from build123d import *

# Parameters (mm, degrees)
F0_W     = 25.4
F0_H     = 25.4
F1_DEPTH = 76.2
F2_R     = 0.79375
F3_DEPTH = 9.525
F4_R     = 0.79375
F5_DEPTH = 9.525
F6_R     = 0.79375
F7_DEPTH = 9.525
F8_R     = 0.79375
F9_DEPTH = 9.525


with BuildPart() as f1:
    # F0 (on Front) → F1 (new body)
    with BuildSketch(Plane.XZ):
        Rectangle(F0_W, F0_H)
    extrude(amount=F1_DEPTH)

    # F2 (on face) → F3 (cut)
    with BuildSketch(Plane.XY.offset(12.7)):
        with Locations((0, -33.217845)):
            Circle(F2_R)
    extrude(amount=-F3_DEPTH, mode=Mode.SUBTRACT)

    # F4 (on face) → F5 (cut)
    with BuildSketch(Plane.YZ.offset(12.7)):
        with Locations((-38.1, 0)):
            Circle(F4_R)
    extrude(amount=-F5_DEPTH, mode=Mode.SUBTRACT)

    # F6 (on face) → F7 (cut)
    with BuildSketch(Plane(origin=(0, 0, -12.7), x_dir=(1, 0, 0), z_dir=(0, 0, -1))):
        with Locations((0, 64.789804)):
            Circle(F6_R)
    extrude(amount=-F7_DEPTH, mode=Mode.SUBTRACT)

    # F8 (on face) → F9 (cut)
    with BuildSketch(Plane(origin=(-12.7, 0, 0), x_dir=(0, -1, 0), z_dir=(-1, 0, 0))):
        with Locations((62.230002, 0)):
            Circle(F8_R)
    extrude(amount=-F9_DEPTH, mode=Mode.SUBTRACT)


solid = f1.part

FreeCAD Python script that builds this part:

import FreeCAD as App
import Part
import Sketcher
from FreeCAD import Vector
Q = App.Units.Quantity

doc = App.newDocument("Part")
body = doc.addObject("PartDesign::Body", "Body")

# Sketch on XZ plane
sketch1 = doc.addObject("Sketcher::SketchObject", "Sketch")
body.addObject(sketch1)
sketch1.AttachmentSupport = (doc.XZ_Plane, [""])
sketch1.MapMode = "FlatFace"
sketch1.addGeometry(Part.LineSegment(Vector(-13, 13, 0), Vector(-13, -13, 0)), False)
sketch1.addGeometry(Part.LineSegment(Vector(-13, -13, 0), Vector(13, -13, 0)), False)
sketch1.addGeometry(Part.LineSegment(Vector(13, -13, 0), Vector(13, 13, 0)), False)
sketch1.addGeometry(Part.LineSegment(Vector(13, 13, 0), Vector(-13, 13, 0)), False)
sketch1.addConstraint(Sketcher.Constraint("Coincident", 0, 2, 1, 1))
sketch1.addConstraint(Sketcher.Constraint("Coincident", 1, 2, 2, 1))
sketch1.addConstraint(Sketcher.Constraint("Coincident", 2, 2, 3, 1))
sketch1.addConstraint(Sketcher.Constraint("Coincident", 3, 2, 0, 1))
sketch1.addConstraint(Sketcher.Constraint("Vertical", 0))
sketch1.addConstraint(Sketcher.Constraint("Horizontal", 1))
sketch1.addConstraint(Sketcher.Constraint("Vertical", 2))
sketch1.addConstraint(Sketcher.Constraint("Horizontal", 3))
sketch1.addConstraint(Sketcher.Constraint("Symmetric", 0, 2, 2, 2, -1, 1))
sketch1.addConstraint(Sketcher.Constraint("Equal", 3, 0))
sketch1.addConstraint(Sketcher.Constraint("DistanceX", 1, 1, 1, 2, Q("1 in")))
pad1 = doc.addObject("PartDesign::Pad", "Pad")
body.addObject(pad1)
pad1.Profile = sketch1
pad1.Length = Q("3 in")

# Sketch on XY plane
sketch2 = doc.addObject("Sketcher::SketchObject", "Sketch001")
body.addObject(sketch2)
sketch2.AttachmentSupport = (doc.XY_Plane, [""])
sketch2.MapMode = "FlatFace"
sketch2.AttachmentOffset = App.Placement(Vector(0, 0, 0.5 * 25.4), App.Rotation())
sketch2.addGeometry(Part.Circle(Vector(0, -33.2, 0), Vector(0, 0, 1), 0.8), False)
sketch2.addConstraint(Sketcher.Constraint("PointOnObject", 0, 3, -2))
sketch2.addConstraint(Sketcher.Constraint("Diameter", 0, Q("0.0625 in")))
sketch2.addConstraint(Sketcher.Constraint("DistanceY", 0, 3, -1, 1, 33.217845))
pocket1 = doc.addObject("PartDesign::Pocket", "Pocket")
body.addObject(pocket1)
pocket1.Profile = sketch2
pocket1.Length = Q("0.375 in")

# Sketch on YZ plane
sketch3 = doc.addObject("Sketcher::SketchObject", "Sketch002")
body.addObject(sketch3)
sketch3.AttachmentSupport = (doc.YZ_Plane, [""])
sketch3.MapMode = "FlatFace"
sketch3.AttachmentOffset = App.Placement(Vector(0, 0, 0.5 * 25.4), App.Rotation())
sketch3.addGeometry(Part.Circle(Vector(-38.1, 0, 0), Vector(0, 0, 1), 0.8), False)
sketch3.addConstraint(Sketcher.Constraint("PointOnObject", 0, 3, -1))
sketch3.addConstraint(Sketcher.Constraint("Diameter", 0, Q("0.0625 in")))
sketch3.addConstraint(Sketcher.Constraint("DistanceX", 0, 3, -1, 1, Q("1.5 in")))
pocket2 = doc.addObject("PartDesign::Pocket", "Pocket001")
body.addObject(pocket2)
pocket2.Profile = sketch3
pocket2.Length = Q("0.375 in")

# Sketch on XY plane
sketch4 = doc.addObject("Sketcher::SketchObject", "Sketch003")
body.addObject(sketch4)
sketch4.AttachmentSupport = (doc.XY_Plane, [""])
sketch4.MapMode = "FlatFace"
sketch4.AttachmentOffset = App.Placement(Vector(0, 0, -0.5 * 25.4), App.Rotation())
sketch4.addGeometry(Part.Circle(Vector(0, -64.8, 0), Vector(0, 0, 1), 0.8), False)
sketch4.addConstraint(Sketcher.Constraint("PointOnObject", 0, 3, -2))
sketch4.addConstraint(Sketcher.Constraint("Diameter", 0, Q("0.0625 in")))
sketch4.addConstraint(Sketcher.Constraint("DistanceY", 0, 3, -1, 1, 64.789804))
pocket3 = doc.addObject("PartDesign::Pocket", "Pocket002")
body.addObject(pocket3)
pocket3.Profile = sketch4
pocket3.Length = Q("0.375 in")
pocket3.Reversed = True

# Sketch on YZ plane
sketch5 = doc.addObject("Sketcher::SketchObject", "Sketch004")
body.addObject(sketch5)
sketch5.AttachmentSupport = (doc.YZ_Plane, [""])
sketch5.MapMode = "FlatFace"
sketch5.AttachmentOffset = App.Placement(Vector(0, 0, -0.5 * 25.4), App.Rotation())
sketch5.addGeometry(Part.Circle(Vector(-62.2, 0, 0), Vector(0, 0, 1), 0.8), False)
sketch5.addConstraint(Sketcher.Constraint("PointOnObject", 0, 3, -1))
sketch5.addConstraint(Sketcher.Constraint("Diameter", 0, Q("0.0625 in")))
sketch5.addConstraint(Sketcher.Constraint("DistanceX", 0, 3, -1, 1, Q("2.4500001 in")))
pocket4 = doc.addObject("PartDesign::Pocket", "Pocket003")
body.addObject(pocket4)
pocket4.Profile = sketch5
pocket4.Length = Q("0.375 in")
pocket4.Reversed = True

doc.recompute()
